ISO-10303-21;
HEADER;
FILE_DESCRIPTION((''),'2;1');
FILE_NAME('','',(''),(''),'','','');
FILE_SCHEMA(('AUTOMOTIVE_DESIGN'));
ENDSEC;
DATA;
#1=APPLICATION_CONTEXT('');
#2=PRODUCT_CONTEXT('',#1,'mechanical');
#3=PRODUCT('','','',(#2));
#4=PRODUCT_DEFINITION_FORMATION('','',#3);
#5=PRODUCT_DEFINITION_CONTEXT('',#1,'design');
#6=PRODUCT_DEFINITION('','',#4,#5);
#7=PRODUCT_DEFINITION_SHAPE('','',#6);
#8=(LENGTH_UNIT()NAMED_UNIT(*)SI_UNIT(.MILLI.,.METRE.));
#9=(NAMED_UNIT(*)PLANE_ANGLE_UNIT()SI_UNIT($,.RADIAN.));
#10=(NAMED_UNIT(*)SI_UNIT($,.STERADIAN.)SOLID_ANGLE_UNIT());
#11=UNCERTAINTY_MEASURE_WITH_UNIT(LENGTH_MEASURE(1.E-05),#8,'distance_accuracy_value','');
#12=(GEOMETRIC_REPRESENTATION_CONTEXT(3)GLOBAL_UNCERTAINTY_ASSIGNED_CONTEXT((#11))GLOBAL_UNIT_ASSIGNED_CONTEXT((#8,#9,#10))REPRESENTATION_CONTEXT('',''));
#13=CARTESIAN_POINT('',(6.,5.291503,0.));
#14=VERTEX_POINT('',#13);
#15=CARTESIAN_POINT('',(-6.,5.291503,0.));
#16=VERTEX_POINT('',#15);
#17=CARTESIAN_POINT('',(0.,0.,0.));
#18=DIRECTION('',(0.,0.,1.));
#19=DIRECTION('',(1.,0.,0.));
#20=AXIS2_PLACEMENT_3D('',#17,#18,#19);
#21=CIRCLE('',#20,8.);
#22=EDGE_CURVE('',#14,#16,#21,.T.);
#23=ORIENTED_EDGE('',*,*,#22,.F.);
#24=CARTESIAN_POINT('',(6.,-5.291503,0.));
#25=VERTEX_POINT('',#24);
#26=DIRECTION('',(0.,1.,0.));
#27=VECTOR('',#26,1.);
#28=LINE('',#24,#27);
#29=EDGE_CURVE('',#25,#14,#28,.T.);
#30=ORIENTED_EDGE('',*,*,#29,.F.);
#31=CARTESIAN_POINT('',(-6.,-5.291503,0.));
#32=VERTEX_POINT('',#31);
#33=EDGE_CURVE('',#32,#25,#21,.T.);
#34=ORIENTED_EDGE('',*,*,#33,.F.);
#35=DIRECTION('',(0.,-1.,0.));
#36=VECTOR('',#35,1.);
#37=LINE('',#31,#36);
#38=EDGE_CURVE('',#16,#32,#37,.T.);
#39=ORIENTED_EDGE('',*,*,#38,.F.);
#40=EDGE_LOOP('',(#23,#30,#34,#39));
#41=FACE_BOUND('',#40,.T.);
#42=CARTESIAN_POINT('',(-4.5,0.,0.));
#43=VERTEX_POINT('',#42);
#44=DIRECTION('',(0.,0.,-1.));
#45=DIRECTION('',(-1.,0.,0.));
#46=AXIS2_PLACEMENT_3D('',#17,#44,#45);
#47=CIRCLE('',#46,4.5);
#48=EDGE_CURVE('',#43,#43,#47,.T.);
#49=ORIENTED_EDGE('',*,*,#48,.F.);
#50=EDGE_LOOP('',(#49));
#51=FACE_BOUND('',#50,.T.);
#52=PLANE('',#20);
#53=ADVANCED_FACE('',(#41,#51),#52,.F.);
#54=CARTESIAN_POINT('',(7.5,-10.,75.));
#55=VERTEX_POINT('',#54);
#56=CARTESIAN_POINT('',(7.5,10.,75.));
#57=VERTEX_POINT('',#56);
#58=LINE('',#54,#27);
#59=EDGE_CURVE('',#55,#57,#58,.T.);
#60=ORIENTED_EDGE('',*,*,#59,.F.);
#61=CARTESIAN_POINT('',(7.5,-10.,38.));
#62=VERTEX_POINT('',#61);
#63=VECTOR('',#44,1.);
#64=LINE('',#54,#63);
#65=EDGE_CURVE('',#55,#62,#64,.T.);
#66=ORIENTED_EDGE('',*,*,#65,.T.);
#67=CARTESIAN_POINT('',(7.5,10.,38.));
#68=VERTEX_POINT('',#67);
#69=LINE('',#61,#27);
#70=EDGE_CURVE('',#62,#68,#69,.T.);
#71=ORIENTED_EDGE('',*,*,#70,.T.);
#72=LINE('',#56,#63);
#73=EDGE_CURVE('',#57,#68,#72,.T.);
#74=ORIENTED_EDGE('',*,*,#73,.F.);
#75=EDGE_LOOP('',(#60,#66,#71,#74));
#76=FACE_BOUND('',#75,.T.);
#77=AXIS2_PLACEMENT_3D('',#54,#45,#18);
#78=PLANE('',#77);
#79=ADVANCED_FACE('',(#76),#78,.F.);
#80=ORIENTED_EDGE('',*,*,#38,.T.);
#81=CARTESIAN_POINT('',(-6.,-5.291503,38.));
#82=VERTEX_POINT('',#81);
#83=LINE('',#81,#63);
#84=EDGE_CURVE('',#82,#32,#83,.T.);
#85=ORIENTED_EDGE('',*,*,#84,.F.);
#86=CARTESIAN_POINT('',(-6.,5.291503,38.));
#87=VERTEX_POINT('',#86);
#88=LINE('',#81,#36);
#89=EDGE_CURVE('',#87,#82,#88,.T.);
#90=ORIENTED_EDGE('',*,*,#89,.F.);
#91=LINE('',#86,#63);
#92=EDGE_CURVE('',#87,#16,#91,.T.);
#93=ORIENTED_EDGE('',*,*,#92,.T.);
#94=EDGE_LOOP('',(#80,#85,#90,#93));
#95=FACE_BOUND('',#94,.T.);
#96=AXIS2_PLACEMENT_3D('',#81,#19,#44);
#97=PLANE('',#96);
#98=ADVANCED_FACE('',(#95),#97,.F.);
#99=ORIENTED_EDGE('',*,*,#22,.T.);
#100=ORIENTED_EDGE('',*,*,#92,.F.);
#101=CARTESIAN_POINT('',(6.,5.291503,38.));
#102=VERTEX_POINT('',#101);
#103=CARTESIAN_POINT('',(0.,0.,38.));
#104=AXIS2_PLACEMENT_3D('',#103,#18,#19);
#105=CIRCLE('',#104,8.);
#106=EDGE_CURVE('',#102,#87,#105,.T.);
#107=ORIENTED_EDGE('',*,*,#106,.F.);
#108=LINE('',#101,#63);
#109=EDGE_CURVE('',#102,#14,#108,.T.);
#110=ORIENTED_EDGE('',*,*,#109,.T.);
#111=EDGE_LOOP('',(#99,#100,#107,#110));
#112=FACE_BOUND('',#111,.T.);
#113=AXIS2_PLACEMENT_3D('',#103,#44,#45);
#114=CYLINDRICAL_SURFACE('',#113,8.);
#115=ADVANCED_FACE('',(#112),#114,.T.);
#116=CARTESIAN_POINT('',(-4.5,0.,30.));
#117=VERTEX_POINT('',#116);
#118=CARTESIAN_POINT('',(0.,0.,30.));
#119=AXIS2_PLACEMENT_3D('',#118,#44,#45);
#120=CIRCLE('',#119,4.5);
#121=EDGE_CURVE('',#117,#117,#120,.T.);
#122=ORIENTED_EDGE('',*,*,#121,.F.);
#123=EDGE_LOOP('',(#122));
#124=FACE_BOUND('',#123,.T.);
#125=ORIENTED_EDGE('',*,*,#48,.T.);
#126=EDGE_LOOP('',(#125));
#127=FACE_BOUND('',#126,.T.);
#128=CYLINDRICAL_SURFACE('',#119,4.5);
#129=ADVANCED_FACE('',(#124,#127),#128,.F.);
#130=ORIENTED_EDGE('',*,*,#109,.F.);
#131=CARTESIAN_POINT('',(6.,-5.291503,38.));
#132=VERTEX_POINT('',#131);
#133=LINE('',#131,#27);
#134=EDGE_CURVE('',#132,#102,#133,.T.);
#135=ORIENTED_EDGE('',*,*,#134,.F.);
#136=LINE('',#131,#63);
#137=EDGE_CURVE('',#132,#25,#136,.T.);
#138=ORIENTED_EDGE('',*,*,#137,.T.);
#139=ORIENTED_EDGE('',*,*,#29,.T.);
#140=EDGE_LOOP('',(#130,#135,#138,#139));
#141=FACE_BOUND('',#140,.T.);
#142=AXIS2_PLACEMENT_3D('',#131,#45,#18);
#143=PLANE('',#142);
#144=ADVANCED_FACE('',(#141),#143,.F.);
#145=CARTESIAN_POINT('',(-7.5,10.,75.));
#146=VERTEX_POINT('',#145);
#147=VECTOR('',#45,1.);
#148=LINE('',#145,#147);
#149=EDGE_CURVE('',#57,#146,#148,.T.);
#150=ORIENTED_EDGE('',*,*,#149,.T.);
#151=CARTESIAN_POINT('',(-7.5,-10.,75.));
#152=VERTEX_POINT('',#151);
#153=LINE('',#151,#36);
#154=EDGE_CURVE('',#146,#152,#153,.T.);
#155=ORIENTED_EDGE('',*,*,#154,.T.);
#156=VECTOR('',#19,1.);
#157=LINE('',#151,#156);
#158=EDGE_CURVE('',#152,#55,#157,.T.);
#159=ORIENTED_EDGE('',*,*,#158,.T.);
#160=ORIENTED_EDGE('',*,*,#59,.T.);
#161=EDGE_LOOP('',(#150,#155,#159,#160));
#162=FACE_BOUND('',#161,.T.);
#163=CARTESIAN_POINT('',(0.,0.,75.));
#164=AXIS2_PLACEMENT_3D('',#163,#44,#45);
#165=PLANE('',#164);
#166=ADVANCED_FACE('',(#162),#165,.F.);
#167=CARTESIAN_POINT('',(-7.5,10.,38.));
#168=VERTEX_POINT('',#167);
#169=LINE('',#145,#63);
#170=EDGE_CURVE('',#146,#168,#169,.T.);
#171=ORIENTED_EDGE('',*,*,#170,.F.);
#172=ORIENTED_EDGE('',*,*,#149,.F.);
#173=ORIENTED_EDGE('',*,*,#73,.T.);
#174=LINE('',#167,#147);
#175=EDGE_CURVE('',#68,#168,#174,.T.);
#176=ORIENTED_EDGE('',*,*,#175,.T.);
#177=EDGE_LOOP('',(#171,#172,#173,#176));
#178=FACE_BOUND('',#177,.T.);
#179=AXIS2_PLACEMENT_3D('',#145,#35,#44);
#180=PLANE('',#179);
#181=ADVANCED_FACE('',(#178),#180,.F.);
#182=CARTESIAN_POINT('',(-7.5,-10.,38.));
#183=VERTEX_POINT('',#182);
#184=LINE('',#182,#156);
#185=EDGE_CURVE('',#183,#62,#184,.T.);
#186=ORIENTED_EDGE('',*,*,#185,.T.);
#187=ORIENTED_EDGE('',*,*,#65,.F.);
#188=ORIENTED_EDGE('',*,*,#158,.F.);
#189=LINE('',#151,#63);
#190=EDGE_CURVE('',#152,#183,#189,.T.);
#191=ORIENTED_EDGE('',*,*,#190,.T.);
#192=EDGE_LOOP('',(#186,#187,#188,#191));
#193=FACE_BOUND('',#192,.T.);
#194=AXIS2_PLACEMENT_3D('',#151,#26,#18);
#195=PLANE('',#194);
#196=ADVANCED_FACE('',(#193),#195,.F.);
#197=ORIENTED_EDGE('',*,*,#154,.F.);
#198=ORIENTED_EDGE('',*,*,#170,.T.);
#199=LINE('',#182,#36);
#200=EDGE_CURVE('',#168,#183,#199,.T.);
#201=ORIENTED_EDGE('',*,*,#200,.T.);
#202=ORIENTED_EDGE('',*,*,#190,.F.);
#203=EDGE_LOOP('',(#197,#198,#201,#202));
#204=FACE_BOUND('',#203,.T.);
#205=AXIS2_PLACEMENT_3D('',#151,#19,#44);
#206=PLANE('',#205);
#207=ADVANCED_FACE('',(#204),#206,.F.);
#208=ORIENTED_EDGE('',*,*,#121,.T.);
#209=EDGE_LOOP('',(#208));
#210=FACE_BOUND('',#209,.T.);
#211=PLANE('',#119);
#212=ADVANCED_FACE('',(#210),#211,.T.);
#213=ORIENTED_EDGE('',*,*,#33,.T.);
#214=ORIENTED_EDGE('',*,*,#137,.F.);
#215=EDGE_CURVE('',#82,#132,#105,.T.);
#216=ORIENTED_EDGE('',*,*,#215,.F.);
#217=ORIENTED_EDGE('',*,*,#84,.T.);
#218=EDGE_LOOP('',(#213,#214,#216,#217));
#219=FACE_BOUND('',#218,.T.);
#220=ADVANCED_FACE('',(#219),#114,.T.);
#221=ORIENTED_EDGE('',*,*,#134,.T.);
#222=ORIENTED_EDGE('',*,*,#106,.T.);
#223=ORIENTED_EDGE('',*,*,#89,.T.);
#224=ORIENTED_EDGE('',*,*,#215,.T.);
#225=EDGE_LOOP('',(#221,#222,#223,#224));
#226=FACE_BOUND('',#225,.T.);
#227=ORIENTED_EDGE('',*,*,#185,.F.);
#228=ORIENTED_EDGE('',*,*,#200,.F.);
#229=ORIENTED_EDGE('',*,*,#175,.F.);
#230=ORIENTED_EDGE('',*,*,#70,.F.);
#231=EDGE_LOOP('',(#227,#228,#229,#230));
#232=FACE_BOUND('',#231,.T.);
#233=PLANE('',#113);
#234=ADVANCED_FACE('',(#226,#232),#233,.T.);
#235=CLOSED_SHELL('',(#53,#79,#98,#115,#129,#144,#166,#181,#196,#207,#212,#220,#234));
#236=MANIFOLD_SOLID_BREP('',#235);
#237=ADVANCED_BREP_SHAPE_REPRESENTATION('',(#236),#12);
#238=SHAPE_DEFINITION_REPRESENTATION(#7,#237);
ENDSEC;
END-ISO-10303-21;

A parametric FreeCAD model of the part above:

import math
import FreeCAD as App
import Part
import Sketcher


def add_polygon(sketch, points):
    """Adds a closed chain of lines whose ends are joined by coincident constraints."""
    first, n = sketch.GeometryCount, len(points)
    for a, b in zip(points, points[1:] + points[:1]):
        sketch.addGeometry(Part.LineSegment(App.Vector(*a, 0), App.Vector(*b, 0)), False)
    for i in range(n):
        sketch.addConstraint(Sketcher.Constraint("Coincident", first + i, 2, first + (i + 1) % n, 1))

doc = App.newDocument("Part")
body = doc.addObject("PartDesign::Body", "Body")

sketch1 = doc.addObject("Sketcher::SketchObject", "Sketch")
body.addObject(sketch1)
sketch1.AttachmentSupport = (doc.XY_Plane, [""])
sketch1.MapMode = "FlatFace"
sketch1.addGeometry(Part.LineSegment(App.Vector(6, -5, 0), App.Vector(6, 5, 0)), False)
sketch1.addGeometry(Part.ArcOfCircle(Part.Circle(App.Vector(0, 0, 0), App.Vector(0, 0, 1), 8), math.radians(41), math.radians(139)), False)
sketch1.addGeometry(Part.LineSegment(App.Vector(-6, 5, 0), App.Vector(-6, -5, 0)), False)
sketch1.addGeometry(Part.ArcOfCircle(Part.Circle(App.Vector(0, 0, 0), App.Vector(0, 0, 1), 8), math.radians(-139), math.radians(-41)), False)
sketch1.addConstraint(Sketcher.Constraint("Coincident", 0, 2, 1, 1))
sketch1.addConstraint(Sketcher.Constraint("Coincident", 1, 2, 2, 1))
sketch1.addConstraint(Sketcher.Constraint("Coincident", 2, 2, 3, 1))
sketch1.addConstraint(Sketcher.Constraint("Coincident", 3, 2, 0, 1))
sketch1.addConstraint(Sketcher.Constraint("Vertical", 0))
sketch1.addConstraint(Sketcher.Constraint("Vertical", 2))
sketch1.addConstraint(Sketcher.Constraint("Coincident", 1, 3, -1, 1))
sketch1.addConstraint(Sketcher.Constraint("Coincident", 3, 3, -1, 1))
sketch1.addConstraint(Sketcher.Constraint("Equal", 1, 3))
sketch1.addConstraint(Sketcher.Constraint("Horizontal", 0, 2, 1, 2))
sketch1.addConstraint(Sketcher.Constraint("Radius", 1, 8.0))
sketch1.addConstraint(Sketcher.Constraint("DistanceX", -1, 1, 0, 2, 6.0))
pad1 = doc.addObject("PartDesign::Pad", "Pad")
body.addObject(pad1)
pad1.Profile = sketch1
pad1.Length = 38

sketch2 = doc.addObject("Sketcher::SketchObject", "Sketch001")
body.addObject(sketch2)
sketch2.AttachmentSupport = (doc.XY_Plane, [""])
sketch2.MapMode = "FlatFace"
sketch2.AttachmentOffset = App.Placement(App.Vector(0, 0, 38), App.Rotation())
add_polygon(sketch2, [(-8, 10), (-8, -10), (8, -10), (8, 10)])
sketch2.addConstraint(Sketcher.Constraint("Vertical", 0))
sketch2.addConstraint(Sketcher.Constraint("Horizontal", 1))
sketch2.addConstraint(Sketcher.Constraint("Vertical", 2))
sketch2.addConstraint(Sketcher.Constraint("Horizontal", 3))
sketch2.addConstraint(Sketcher.Constraint("Symmetric", 0, 2, 2, 2, -1, 1))
sketch2.addConstraint(Sketcher.Constraint("DistanceX", 1, 1, 1, 2, 15.0))
sketch2.addConstraint(Sketcher.Constraint("DistanceY", 0, 2, 0, 1, 20.0))
pad2 = doc.addObject("PartDesign::Pad", "Pad001")
body.addObject(pad2)
pad2.Profile = sketch2
pad2.Length = 37

sketch3 = doc.addObject("Sketcher::SketchObject", "Sketch002")
body.addObject(sketch3)
sketch3.AttachmentSupport = (doc.XY_Plane, [""])
sketch3.MapMode = "FlatFace"
sketch3.addGeometry(Part.Circle(App.Vector(0, 0, 0), App.Vector(0, 0, 1), 4.5), False)
sketch3.addConstraint(Sketcher.Constraint("Coincident", 0, 3, -1, 1))
sketch3.addConstraint(Sketcher.Constraint("Diameter", 0, 9.0))
pocket1 = doc.addObject("PartDesign::Pocket", "Pocket")
body.addObject(pocket1)
pocket1.Profile = sketch3
pocket1.Length = 30
pocket1.Reversed = True

doc.recompute()
